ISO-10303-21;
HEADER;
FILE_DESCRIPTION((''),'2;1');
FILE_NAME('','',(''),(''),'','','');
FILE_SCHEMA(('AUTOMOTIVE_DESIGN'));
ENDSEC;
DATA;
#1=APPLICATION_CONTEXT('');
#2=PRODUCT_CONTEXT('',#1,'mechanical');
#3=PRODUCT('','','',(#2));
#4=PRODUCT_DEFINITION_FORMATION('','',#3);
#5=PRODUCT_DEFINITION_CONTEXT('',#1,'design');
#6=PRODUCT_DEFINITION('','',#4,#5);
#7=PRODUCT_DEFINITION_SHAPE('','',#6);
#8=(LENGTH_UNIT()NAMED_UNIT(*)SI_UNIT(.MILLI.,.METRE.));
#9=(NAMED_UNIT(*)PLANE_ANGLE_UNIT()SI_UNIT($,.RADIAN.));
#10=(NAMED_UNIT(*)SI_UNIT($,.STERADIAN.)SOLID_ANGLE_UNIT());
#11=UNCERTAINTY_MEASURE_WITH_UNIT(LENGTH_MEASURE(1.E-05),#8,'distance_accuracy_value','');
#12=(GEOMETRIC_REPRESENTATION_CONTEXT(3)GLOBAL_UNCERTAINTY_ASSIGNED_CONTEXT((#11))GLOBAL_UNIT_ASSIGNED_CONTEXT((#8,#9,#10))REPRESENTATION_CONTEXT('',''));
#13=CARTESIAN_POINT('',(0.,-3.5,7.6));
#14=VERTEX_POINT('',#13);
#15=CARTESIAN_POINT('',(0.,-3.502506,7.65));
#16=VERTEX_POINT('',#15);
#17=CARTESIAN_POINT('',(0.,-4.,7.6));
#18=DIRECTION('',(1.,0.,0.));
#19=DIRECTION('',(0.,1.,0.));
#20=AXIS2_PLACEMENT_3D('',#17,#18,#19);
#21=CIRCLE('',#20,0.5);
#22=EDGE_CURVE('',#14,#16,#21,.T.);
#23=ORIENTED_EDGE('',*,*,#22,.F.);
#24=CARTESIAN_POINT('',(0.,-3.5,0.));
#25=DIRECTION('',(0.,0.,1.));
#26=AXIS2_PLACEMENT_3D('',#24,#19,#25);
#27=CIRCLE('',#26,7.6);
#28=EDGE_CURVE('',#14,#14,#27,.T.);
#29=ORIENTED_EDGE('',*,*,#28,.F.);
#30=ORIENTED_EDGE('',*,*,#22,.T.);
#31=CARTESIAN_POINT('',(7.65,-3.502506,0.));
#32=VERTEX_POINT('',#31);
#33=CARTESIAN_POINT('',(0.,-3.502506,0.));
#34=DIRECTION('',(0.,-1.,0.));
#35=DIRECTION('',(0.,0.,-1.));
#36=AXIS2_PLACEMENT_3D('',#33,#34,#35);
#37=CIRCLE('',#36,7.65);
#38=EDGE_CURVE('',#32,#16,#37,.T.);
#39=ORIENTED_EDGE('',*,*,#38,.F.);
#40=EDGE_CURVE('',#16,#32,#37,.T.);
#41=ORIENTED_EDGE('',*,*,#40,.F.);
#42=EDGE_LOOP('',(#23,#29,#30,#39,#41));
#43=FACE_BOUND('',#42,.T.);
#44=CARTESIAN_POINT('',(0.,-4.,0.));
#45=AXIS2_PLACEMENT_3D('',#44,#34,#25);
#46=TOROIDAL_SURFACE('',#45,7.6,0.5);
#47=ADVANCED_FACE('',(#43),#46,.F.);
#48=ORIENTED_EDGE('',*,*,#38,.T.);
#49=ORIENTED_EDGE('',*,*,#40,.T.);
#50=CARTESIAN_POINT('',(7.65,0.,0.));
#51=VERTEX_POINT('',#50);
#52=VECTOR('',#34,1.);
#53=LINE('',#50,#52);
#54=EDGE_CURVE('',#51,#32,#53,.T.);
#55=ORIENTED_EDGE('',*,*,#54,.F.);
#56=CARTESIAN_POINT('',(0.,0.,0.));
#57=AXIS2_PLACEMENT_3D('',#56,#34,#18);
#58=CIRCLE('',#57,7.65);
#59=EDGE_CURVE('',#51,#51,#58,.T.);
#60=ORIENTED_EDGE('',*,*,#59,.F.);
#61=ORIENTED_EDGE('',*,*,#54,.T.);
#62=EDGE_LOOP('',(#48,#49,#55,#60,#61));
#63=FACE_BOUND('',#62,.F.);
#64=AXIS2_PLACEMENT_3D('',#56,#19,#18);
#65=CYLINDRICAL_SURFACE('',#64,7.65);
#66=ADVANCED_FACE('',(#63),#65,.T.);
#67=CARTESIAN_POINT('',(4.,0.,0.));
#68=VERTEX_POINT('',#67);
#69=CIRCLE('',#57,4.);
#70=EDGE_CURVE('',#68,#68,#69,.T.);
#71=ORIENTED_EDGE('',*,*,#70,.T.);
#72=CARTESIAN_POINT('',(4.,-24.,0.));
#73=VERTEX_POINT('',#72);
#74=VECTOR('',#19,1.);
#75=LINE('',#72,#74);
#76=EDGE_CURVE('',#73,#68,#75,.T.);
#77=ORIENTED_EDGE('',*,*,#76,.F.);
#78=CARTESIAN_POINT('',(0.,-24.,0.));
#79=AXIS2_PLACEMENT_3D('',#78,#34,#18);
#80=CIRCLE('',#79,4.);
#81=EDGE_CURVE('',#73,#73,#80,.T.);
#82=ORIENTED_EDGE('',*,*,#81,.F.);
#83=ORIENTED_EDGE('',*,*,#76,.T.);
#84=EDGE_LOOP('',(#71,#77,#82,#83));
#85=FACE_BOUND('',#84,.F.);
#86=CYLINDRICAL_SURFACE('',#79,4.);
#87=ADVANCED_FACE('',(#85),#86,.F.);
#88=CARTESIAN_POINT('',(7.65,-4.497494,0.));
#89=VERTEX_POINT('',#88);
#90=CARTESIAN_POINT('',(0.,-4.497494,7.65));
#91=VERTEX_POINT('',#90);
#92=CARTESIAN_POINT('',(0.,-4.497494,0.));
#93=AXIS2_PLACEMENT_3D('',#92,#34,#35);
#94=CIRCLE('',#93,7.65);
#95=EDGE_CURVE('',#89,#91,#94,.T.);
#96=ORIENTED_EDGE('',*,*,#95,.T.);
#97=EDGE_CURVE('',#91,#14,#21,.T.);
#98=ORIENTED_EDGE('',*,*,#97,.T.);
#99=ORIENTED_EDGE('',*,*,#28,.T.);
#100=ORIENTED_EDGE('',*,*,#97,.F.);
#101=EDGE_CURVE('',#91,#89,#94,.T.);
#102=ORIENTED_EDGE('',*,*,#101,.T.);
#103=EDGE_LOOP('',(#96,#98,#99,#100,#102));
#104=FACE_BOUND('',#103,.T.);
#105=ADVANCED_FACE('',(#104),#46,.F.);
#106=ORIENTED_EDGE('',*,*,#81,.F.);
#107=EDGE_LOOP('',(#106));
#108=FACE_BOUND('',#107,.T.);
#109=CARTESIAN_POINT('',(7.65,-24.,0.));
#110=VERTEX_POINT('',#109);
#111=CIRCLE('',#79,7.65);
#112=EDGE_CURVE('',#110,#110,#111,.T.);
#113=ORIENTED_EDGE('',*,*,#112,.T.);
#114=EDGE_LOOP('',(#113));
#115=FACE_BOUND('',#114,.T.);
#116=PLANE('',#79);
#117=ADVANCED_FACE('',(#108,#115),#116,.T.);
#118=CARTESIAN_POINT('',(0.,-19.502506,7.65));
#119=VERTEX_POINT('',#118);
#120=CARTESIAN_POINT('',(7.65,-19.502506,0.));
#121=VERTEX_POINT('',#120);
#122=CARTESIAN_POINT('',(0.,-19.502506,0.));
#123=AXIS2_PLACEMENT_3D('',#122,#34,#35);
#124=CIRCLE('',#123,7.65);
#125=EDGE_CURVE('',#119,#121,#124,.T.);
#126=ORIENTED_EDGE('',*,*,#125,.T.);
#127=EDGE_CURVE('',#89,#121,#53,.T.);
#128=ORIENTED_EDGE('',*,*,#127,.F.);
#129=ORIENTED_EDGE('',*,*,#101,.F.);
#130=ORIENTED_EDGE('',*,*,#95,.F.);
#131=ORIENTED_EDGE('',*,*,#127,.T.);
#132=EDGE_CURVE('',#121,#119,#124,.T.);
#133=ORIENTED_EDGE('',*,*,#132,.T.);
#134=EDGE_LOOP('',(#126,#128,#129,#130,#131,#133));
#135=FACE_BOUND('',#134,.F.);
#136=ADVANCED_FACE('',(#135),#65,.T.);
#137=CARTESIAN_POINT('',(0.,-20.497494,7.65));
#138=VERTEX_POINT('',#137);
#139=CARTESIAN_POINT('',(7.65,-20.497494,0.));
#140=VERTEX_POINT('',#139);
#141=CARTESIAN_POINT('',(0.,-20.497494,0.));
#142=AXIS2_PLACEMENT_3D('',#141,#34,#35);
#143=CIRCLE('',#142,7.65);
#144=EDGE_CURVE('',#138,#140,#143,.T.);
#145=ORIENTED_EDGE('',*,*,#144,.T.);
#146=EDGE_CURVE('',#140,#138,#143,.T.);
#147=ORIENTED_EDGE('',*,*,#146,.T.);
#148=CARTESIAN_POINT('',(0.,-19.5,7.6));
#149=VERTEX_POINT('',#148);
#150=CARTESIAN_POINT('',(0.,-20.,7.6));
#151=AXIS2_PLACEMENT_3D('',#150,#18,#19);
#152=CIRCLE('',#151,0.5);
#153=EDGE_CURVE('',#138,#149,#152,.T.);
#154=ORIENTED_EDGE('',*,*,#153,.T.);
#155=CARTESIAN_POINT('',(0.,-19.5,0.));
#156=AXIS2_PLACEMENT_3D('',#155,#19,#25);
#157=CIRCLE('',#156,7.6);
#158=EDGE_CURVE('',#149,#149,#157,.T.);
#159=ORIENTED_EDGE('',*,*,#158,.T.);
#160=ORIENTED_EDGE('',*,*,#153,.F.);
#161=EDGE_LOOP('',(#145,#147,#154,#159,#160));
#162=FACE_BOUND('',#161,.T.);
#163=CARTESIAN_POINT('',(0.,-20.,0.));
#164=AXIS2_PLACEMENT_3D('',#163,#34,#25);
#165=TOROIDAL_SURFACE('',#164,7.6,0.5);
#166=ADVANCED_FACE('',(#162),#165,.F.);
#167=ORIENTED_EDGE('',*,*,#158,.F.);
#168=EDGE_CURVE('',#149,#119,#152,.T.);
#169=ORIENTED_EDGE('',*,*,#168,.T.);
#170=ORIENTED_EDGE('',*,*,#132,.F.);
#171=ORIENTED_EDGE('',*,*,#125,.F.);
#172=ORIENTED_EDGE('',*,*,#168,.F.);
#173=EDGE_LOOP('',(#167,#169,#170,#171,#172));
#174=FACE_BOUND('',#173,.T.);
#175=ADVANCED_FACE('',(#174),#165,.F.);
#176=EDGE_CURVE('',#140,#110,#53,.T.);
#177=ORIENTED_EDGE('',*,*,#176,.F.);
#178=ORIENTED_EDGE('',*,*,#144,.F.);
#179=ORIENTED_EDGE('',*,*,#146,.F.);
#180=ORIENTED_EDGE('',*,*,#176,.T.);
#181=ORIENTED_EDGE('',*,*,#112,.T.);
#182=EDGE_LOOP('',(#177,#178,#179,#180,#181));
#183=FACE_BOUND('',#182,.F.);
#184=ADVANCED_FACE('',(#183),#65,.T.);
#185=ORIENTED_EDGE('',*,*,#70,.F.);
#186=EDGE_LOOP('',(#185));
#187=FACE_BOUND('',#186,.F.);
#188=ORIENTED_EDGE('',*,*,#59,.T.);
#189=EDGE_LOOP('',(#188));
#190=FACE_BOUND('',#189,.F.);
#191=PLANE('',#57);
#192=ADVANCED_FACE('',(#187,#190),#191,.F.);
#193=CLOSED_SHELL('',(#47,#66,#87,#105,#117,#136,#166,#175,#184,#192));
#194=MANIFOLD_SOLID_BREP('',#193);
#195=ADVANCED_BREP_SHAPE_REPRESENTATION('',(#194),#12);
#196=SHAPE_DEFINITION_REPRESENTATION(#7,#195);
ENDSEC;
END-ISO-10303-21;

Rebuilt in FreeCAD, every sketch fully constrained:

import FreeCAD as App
import Part
import Sketcher
Q = App.Units.Quantity

doc = App.newDocument("Part")
params = doc.addObject("Spreadsheet::Sheet", "Params")
for row, (alias, value) in enumerate([
    ("sketch1_diameter", "15.3 mm"),
    ("pad1_length", "24 mm"),
    ("sketch2_diameter", "8 mm"),
    ("pocket1_length", "25 mm"),
    ("sketch3_diameter", "1 mm"),
    ("groove_angle", "360 deg"),
], start=1):
    params.set(f"A{row}", alias)
    params.set(f"B{row}", "=" + value)
    params.setAlias(f"B{row}", alias)

body = doc.addObject("PartDesign::Body", "Body")

sketch1 = body.newObject("Sketcher::SketchObject", "Sketch")
sketch1.AttachmentSupport = (doc.getObject("XZ_Plane"), [""])
sketch1.MapMode = "FlatFace"
sketch1.addGeometry(Part.Circle(App.Vector(0, 0, 0), App.Vector(0, 0, 1), 8), False)
sketch1.addConstraint(Sketcher.Constraint("Coincident", 0, 3, -1, 1))
sketch1.addConstraint(Sketcher.Constraint("Diameter", 0, Q("15.3 mm")))
sketch1.setExpression("Constraints[1]", "Params.sketch1_diameter")
pad1 = body.newObject("PartDesign::Pad", "Pad")
pad1.Profile = sketch1
pad1.setExpression("Length", "Params.pad1_length")

sketch2 = body.newObject("Sketcher::SketchObject", "Sketch001")
sketch2.AttachmentSupport = (doc.getObject("XZ_Plane"), [""])
sketch2.MapMode = "FlatFace"
sketch2.AttachmentOffset = App.Placement(App.Vector(0, 0, 24), App.Rotation())
sketch2.addGeometry(Part.Circle(App.Vector(0, 0, 0), App.Vector(0, 0, 1), 4), False)
sketch2.addConstraint(Sketcher.Constraint("Coincident", 0, 3, -1, 1))
sketch2.addConstraint(Sketcher.Constraint("Diameter", 0, Q("8 mm")))
sketch2.setExpression("Constraints[1]", "Params.sketch2_diameter")
pocket1 = body.newObject("PartDesign::Pocket", "Pocket")
pocket1.Profile = sketch2
pocket1.setExpression("Length", "Params.pocket1_length")

sketch3 = body.newObject("Sketcher::SketchObject", "Sketch002")
sketch3.AttachmentSupport = (doc.getObject("YZ_Plane"), [""])
sketch3.MapMode = "FlatFace"
sketch3.addGeometry(Part.Circle(App.Vector(-20, 7.6, 0), App.Vector(0, 0, 1), 0.5), False)
sketch3.addGeometry(Part.Circle(App.Vector(-4, 7.6, 0), App.Vector(0, 0, 1), 0.5), False)
sketch3.addConstraint(Sketcher.Constraint("Equal", 0, 1))
sketch3.addConstraint(Sketcher.Constraint("Horizontal", 0, 3, 1, 3))
sketch3.addConstraint(Sketcher.Constraint("Diameter", 0, Q("1 mm")))
sketch3.addConstraint(Sketcher.Constraint("DistanceX", 0, 3, -1, 1, Q("20 mm")))
sketch3.addConstraint(Sketcher.Constraint("DistanceX", 1, 3, -1, 1, Q("4 mm")))
sketch3.addConstraint(Sketcher.Constraint("DistanceY", -1, 1, 0, 3, Q("7.6 mm")))
sketch3.setExpression("Constraints[2]", "Params.sketch3_diameter")
groove = body.newObject("PartDesign::Groove", "Groove")
groove.Profile = sketch3
groove.ReferenceAxis = (sketch3, ["H_Axis"])
groove.setExpression("Angle", "Params.groove_angle")

doc.recompute()
